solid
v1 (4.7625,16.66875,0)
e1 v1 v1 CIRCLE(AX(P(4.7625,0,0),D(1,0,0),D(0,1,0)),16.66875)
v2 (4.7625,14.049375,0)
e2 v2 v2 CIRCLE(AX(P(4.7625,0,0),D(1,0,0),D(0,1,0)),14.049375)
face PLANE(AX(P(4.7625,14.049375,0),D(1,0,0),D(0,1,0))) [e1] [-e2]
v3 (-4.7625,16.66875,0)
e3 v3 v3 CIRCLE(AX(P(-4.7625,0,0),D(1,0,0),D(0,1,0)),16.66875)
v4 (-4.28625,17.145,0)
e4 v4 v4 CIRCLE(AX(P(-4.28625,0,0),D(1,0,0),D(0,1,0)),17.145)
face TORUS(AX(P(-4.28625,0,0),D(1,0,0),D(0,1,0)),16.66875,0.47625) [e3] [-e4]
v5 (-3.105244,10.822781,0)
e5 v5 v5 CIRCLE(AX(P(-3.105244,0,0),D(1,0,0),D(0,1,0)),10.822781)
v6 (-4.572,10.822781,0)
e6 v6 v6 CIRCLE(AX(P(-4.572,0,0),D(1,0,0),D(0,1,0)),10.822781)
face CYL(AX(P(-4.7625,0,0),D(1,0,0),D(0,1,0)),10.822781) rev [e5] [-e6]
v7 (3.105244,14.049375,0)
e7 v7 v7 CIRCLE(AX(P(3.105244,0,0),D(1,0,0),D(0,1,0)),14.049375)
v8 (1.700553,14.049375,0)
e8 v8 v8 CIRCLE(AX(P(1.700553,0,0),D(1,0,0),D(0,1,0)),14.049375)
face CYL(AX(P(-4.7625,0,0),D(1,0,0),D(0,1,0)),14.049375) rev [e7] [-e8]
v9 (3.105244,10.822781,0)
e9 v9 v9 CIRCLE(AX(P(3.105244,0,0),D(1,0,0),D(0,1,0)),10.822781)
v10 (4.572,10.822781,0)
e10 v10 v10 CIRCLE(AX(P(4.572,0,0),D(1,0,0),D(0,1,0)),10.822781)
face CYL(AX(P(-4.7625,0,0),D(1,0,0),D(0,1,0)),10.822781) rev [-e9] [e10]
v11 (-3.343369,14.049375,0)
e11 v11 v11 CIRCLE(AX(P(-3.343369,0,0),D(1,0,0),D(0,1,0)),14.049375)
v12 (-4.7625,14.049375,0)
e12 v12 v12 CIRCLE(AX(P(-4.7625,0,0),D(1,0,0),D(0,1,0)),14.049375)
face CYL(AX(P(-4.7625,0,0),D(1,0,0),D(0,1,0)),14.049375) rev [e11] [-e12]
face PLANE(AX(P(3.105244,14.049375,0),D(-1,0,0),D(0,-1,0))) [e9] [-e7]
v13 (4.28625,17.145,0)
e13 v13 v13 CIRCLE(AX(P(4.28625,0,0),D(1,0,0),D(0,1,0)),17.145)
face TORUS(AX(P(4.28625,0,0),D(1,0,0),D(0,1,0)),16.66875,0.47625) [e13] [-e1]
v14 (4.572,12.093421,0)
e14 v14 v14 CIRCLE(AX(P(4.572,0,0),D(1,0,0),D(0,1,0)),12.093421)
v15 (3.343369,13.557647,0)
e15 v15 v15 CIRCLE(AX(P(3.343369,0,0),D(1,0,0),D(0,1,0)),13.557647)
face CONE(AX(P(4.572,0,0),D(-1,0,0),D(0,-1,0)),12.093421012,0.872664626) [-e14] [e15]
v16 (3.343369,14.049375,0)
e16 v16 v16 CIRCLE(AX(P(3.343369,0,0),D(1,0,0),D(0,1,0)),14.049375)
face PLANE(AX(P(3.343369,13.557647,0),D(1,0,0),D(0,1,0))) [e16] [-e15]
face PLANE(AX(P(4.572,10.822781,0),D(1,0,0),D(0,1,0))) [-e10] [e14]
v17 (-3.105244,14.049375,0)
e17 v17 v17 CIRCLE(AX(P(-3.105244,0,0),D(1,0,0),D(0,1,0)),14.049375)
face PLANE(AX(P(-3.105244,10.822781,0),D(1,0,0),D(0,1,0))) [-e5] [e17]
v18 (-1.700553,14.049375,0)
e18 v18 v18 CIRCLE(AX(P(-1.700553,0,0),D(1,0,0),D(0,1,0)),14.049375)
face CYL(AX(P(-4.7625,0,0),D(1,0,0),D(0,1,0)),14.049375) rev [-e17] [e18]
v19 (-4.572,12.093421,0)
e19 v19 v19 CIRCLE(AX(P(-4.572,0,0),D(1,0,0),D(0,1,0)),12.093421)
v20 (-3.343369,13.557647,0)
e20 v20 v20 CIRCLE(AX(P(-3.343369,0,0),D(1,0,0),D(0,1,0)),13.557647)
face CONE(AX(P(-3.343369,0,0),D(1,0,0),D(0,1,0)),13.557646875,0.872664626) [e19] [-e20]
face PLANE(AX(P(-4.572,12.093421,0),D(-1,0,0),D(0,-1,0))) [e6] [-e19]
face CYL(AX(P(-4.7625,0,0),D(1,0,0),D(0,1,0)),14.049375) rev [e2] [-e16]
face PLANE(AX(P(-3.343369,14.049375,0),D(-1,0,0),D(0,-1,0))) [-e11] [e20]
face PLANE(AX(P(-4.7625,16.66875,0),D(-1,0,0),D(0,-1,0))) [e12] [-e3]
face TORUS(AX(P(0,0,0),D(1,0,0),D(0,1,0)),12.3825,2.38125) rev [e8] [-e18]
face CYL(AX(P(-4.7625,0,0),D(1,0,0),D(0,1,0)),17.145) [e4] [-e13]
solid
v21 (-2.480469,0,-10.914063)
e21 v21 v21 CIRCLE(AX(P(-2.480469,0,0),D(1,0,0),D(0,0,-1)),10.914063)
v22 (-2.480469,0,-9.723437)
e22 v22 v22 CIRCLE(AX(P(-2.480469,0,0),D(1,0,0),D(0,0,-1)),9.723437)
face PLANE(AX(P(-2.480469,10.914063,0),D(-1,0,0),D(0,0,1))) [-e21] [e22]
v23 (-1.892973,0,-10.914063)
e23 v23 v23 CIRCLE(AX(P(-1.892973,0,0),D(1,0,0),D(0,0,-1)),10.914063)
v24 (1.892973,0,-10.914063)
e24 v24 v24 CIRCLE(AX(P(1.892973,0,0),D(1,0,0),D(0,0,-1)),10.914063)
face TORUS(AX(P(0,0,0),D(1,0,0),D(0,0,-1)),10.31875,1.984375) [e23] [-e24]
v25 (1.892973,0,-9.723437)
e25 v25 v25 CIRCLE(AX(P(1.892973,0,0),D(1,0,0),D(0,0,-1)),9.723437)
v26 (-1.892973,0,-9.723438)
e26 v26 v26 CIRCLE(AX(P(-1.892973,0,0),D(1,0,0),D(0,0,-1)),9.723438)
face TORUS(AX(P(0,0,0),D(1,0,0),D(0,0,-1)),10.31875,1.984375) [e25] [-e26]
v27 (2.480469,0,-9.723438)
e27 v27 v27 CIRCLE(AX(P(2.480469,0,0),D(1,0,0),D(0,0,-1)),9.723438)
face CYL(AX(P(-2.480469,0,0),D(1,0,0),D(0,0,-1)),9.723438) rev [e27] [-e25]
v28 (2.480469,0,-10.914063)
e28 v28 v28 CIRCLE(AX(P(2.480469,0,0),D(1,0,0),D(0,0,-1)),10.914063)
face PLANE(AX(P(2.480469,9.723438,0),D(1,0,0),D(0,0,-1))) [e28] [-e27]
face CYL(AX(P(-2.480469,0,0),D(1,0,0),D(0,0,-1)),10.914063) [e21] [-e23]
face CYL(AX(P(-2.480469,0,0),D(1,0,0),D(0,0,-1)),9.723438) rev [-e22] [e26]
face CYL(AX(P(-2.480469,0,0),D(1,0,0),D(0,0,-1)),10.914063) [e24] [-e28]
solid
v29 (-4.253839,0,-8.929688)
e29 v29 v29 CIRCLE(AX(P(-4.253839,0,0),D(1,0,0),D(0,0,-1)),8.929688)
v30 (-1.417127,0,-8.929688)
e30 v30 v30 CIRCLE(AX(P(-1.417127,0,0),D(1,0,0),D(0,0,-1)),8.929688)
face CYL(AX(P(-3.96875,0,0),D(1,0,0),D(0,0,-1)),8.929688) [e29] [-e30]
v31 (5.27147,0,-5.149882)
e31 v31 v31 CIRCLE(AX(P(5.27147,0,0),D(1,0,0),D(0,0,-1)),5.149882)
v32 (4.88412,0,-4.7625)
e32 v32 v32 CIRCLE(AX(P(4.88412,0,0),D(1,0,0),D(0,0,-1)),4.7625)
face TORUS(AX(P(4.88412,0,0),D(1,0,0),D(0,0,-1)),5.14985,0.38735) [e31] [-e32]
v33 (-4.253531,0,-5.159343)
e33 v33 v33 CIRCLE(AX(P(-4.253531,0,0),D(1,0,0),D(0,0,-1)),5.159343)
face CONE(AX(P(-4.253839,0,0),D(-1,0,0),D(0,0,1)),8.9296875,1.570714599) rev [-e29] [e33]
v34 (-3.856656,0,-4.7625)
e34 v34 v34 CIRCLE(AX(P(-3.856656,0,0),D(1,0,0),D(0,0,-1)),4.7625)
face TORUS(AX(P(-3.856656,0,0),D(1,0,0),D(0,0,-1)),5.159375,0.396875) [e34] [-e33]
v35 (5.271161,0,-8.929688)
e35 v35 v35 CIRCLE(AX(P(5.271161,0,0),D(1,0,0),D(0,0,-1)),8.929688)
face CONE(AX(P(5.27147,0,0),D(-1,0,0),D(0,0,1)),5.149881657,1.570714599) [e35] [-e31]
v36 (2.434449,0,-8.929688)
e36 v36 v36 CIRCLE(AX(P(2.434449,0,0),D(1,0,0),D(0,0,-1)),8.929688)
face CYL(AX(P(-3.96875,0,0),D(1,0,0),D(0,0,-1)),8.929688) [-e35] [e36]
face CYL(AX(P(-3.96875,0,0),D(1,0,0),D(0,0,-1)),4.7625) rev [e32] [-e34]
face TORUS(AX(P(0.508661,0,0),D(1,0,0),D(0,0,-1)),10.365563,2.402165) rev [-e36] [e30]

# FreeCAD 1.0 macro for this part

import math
import FreeCAD as App
import Part
import Sketcher

V = App.Vector
Q = App.Units.Quantity

doc = App.newDocument("Part")
body = doc.addObject("PartDesign::Body", "Body")

# Sketch on XY plane
sketch1 = body.newObject("Sketcher::SketchObject", "Sketch")
sketch1.AttachmentSupport = (doc.getObject("XY_Plane"), [""])
sketch1.MapMode = "FlatFace"
sketch1.addGeometry(Part.LineSegment(V(-3.105244, 14.049375, 0), V(-1.700553, 14.049375, 0)), False)
sketch1.addGeometry(Part.ArcOfCircle(Part.Circle(V(0, 12.3825, 0), V(0, 0, 1), 2.38125), math.radians(44.427004), math.radians(135.572996)), False)
sketch1.addGeometry(Part.LineSegment(V(1.700553, 14.049375, 0), V(3.105244, 14.049375, 0)), False)
sketch1.addGeometry(Part.LineSegment(V(3.105244, 14.049375, 0), V(3.105244, 10.822781, 0)), False)
sketch1.addGeometry(Part.LineSegment(V(3.105244, 10.822781, 0), V(4.572, 10.822781, 0)), False)
sketch1.addGeometry(Part.LineSegment(V(4.572, 10.822781, 0), V(4.572, 12.093421, 0)), False)
sketch1.addGeometry(Part.LineSegment(V(4.572, 12.093421, 0), V(3.343369, 13.557647, 0)), False)
sketch1.addGeometry(Part.LineSegment(V(3.343369, 13.557647, 0), V(3.343369, 14.049375, 0)), False)
sketch1.addGeometry(Part.LineSegment(V(3.343369, 14.049375, 0), V(4.7625, 14.049375, 0)), False)
sketch1.addGeometry(Part.LineSegment(V(4.7625, 14.049375, 0), V(4.7625, 16.66875, 0)), False)
sketch1.addGeometry(Part.ArcOfCircle(Part.Circle(V(4.28625, 16.66875, 0), V(0, 0, 1), 0.47625), math.radians(0), math.radians(90)), False)
sketch1.addGeometry(Part.LineSegment(V(4.28625, 17.145, 0), V(-4.28625, 17.145, 0)), False)
sketch1.addGeometry(Part.ArcOfCircle(Part.Circle(V(-4.28625, 16.66875, 0), V(0, 0, 1), 0.47625), math.radians(90), math.radians(180)), False)
sketch1.addGeometry(Part.LineSegment(V(-4.7625, 16.66875, 0), V(-4.7625, 14.049375, 0)), False)
sketch1.addGeometry(Part.LineSegment(V(-4.7625, 14.049375, 0), V(-3.343369, 14.049375, 0)), False)
sketch1.addGeometry(Part.LineSegment(V(-3.343369, 14.049375, 0), V(-3.343369, 13.557647, 0)), False)
sketch1.addGeometry(Part.LineSegment(V(-3.343369, 13.557647, 0), V(-4.572, 12.093421, 0)), False)
sketch1.addGeometry(Part.LineSegment(V(-4.572, 12.093421, 0), V(-4.572, 10.822781, 0)), False)
sketch1.addGeometry(Part.LineSegment(V(-4.572, 10.822781, 0), V(-3.105244, 10.822781, 0)), False)
sketch1.addGeometry(Part.LineSegment(V(-3.105244, 10.822781, 0), V(-3.105244, 14.049375, 0)), False)
sketch1.addConstraint(Sketcher.Constraint("Coincident", 0, 2, 1, 2))
sketch1.addConstraint(Sketcher.Constraint("Coincident", 1, 1, 2, 1))
sketch1.addConstraint(Sketcher.Constraint("Coincident", 2, 2, 3, 1))
sketch1.addConstraint(Sketcher.Constraint("Coincident", 3, 2, 4, 1))
sketch1.addConstraint(Sketcher.Constraint("Coincident", 4, 2, 5, 1))
sketch1.addConstraint(Sketcher.Constraint("Coincident", 5, 2, 6, 1))
sketch1.addConstraint(Sketcher.Constraint("Coincident", 6, 2, 7, 1))
sketch1.addConstraint(Sketcher.Constraint("Coincident", 7, 2, 8, 1))
sketch1.addConstraint(Sketcher.Constraint("Coincident", 8, 2, 9, 1))
sketch1.addConstraint(Sketcher.Constraint("Tangent", 9, 2, 10, 1))
sketch1.addConstraint(Sketcher.Constraint("Tangent", 10, 2, 11, 1))
sketch1.addConstraint(Sketcher.Constraint("Tangent", 11, 2, 12, 1))
sketch1.addConstraint(Sketcher.Constraint("Tangent", 12, 2, 13, 1))
sketch1.addConstraint(Sketcher.Constraint("Coincident", 13, 2, 14, 1))
sketch1.addConstraint(Sketcher.Constraint("Coincident", 14, 2, 15, 1))
sketch1.addConstraint(Sketcher.Constraint("Coincident", 15, 2, 16, 1))
sketch1.addConstraint(Sketcher.Constraint("Coincident", 16, 2, 17, 1))
sketch1.addConstraint(Sketcher.Constraint("Coincident", 17, 2, 18, 1))
sketch1.addConstraint(Sketcher.Constraint("Coincident", 18, 2, 19, 1))
sketch1.addConstraint(Sketcher.Constraint("Coincident", 19, 2, 0, 1))
sketch1.addConstraint(Sketcher.Constraint("Horizontal", 0))
sketch1.addConstraint(Sketcher.Constraint("Horizontal", 2))
sketch1.addConstraint(Sketcher.Constraint("Vertical", 3))
sketch1.addConstraint(Sketcher.Constraint("Horizontal", 4))
sketch1.addConstraint(Sketcher.Constraint("Vertical", 5))
sketch1.addConstraint(Sketcher.Constraint("Vertical", 7))
sketch1.addConstraint(Sketcher.Constraint("Horizontal", 8))
sketch1.addConstraint(Sketcher.Constraint("Vertical", 9))
sketch1.addConstraint(Sketcher.Constraint("Horizontal", 11))
sketch1.addConstraint(Sketcher.Constraint("Vertical", 13))
sketch1.addConstraint(Sketcher.Constraint("Horizontal", 14))
sketch1.addConstraint(Sketcher.Constraint("Vertical", 15))
sketch1.addConstraint(Sketcher.Constraint("Vertical", 17))
sketch1.addConstraint(Sketcher.Constraint("Horizontal", 18))
sketch1.addConstraint(Sketcher.Constraint("Vertical", 19))
sketch1.addConstraint(Sketcher.Constraint("Equal", 10, 12))
sketch1.addConstraint(Sketcher.Constraint("Symmetric", 0, 2, 1, 1, -2))
sketch1.addConstraint(Sketcher.Constraint("Symmetric", 8, 2, 13, 2, -2))
sketch1.addConstraint(Sketcher.Constraint("Symmetric", 6, 2, 15, 2, -2))
sketch1.addConstraint(Sketcher.Constraint("Symmetric", 5, 2, 16, 2, -2))
sketch1.addConstraint(Sketcher.Constraint("Symmetric", 3, 2, 18, 2, -2))
sketch1.addConstraint(Sketcher.Constraint("Horizontal", 2, 2, 7, 2))
sketch1.addConstraint(Sketcher.Constraint("Angle", 6, Q("130 deg")))
sketch1.addConstraint(Sketcher.Constraint("Radius", 1, Q("0.09375 in")))
sketch1.addConstraint(Sketcher.Constraint("DistanceX", -1, 1, 4, 2, Q("0.18 in")))
sketch1.addConstraint(Sketcher.Constraint("DistanceX", 11, 2, 11, 1, Q("0.3375 in")))
sketch1.addConstraint(Sketcher.Constraint("DistanceY", -1, 1, 10, 3, Q("0.65625 in")))
sketch1.addConstraint(Sketcher.Constraint("DistanceX", -1, 1, 8, 2, Q("0.1875 in")))
sketch1.addConstraint(Sketcher.Constraint("DistanceY", 1, 3, 11, 2, Q("0.1875 in")))
sketch1.addConstraint(Sketcher.Constraint("DistanceX", 0, 1, 0, 2, 1.404691))
sketch1.addConstraint(Sketcher.Constraint("DistanceX", 8, 1, 8, 2, 1.419131))
sketch1.addConstraint(Sketcher.Constraint("DistanceY", 5, 1, 5, 2, 1.27064))
sketch1.addConstraint(Sketcher.Constraint("DistanceY", 7, 1, 7, 2, 0.491728))
sketch1.addConstraint(Sketcher.Constraint("DistanceX", 4, 1, 4, 2, 1.466756))
revolution = body.newObject("PartDesign::Revolution", "Revolution")
revolution.Profile = sketch1
revolution.ReferenceAxis = (sketch1, ["H_Axis"])
revolution.Angle = 360
body2 = doc.addObject("PartDesign::Body", "Body001")

# Sketch on XY plane
sketch2 = body2.newObject("Sketcher::SketchObject", "Sketch001")
sketch2.AttachmentSupport = (doc.getObject("XY_Plane001"), [""])
sketch2.MapMode = "FlatFace"
sketch2.addGeometry(Part.LineSegment(V(5.271161, 8.929688, 0), V(2.434449, 8.929688, 0)), False)
sketch2.addGeometry(Part.ArcOfCircle(Part.Circle(V(0.508661, 10.365563, 0), V(0, 0, 1), 2.402165), math.radians(-143.291644), math.radians(-36.708356)), False)
sketch2.addGeometry(Part.LineSegment(V(-1.417127, 8.929688, 0), V(-4.253839, 8.929688, 0)), False)
sketch2.addGeometry(Part.LineSegment(V(-4.253839, 8.929688, 0), V(-4.253531, 5.159343, 0)), False)
sketch2.addGeometry(Part.ArcOfCircle(Part.Circle(V(-3.856656, 5.159375, 0), V(0, 0, 1), 0.396875), math.radians(-179.995317), math.radians(-90)), False)
sketch2.addGeometry(Part.LineSegment(V(-3.856656, 4.7625, 0), V(4.88412, 4.7625, 0)), False)
sketch2.addGeometry(Part.ArcOfCircle(Part.Circle(V(4.88412, 5.14985, 0), V(0, 0, 1), 0.38735), math.radians(-90), math.radians(0.004683)), False)
sketch2.addGeometry(Part.LineSegment(V(5.27147, 5.149882, 0), V(5.271161, 8.929688, 0)), False)
sketch2.addConstraint(Sketcher.Constraint("Coincident", 0, 2, 1, 2))
sketch2.addConstraint(Sketcher.Constraint("Coincident", 1, 1, 2, 1))
sketch2.addConstraint(Sketcher.Constraint("Coincident", 2, 2, 3, 1))
sketch2.addConstraint(Sketcher.Constraint("Tangent", 3, 2, 4, 1))
sketch2.addConstraint(Sketcher.Constraint("Tangent", 4, 2, 5, 1))
sketch2.addConstraint(Sketcher.Constraint("Tangent", 5, 2, 6, 1))
sketch2.addConstraint(Sketcher.Constraint("Tangent", 6, 2, 7, 1))
sketch2.addConstraint(Sketcher.Constraint("Coincident", 7, 2, 0, 1))
sketch2.addConstraint(Sketcher.Constraint("Horizontal", 0))
sketch2.addConstraint(Sketcher.Constraint("Horizontal", 2))
sketch2.addConstraint(Sketcher.Constraint("Horizontal", 5))
sketch2.addConstraint(Sketcher.Constraint("Parallel", 3, 7))
sketch2.addConstraint(Sketcher.Constraint("Horizontal", 0, 2, 1, 1))
sketch2.addConstraint(Sketcher.Constraint("Equal", 0, 2))
sketch2.addConstraint(Sketcher.Constraint("Radius", 4, Q("0.015625 in")))
sketch2.addConstraint(Sketcher.Constraint("DistanceY", -1, 1, 4, 3, Q("0.203125 in")))
sketch2.addConstraint(Sketcher.Constraint("Radius", 6, 0.38735))
sketch2.addConstraint(Sketcher.Constraint("DistanceX", 2, 2, 1, 3, Q("0.1875 in")))
sketch2.addConstraint(Sketcher.Constraint("Radius", 1, 2.402165))
sketch2.addConstraint(Sketcher.Constraint("DistanceX", 0, 2, 0, 1, 2.836712))
sketch2.addConstraint(Sketcher.Constraint("DistanceX", -1, 1, 1, 3, 0.508661))
sketch2.addConstraint(Sketcher.Constraint("DistanceX", -1, 1, 6, 3, 4.88412))
sketch2.addConstraint(Sketcher.Constraint("DistanceY", 3, 2, 1, 3, 5.20622))
revolution2 = body2.newObject("PartDesign::Revolution", "Revolution001")
revolution2.Profile = sketch2
revolution2.ReferenceAxis = (sketch2, ["H_Axis"])
revolution2.Angle = 360
body3 = doc.addObject("PartDesign::Body", "Body002")

# Sketch on XY plane
sketch3 = body3.newObject("Sketcher::SketchObject", "Sketch002")
sketch3.AttachmentSupport = (doc.getObject("XY_Plane002"), [""])
sketch3.MapMode = "FlatFace"
sketch3.addGeometry(Part.LineSegment(V(1.892973, 9.723437, 0), V(2.480469, 9.723438, 0)), False)
sketch3.addGeometry(Part.LineSegment(V(2.480469, 9.723438, 0), V(2.480469, 10.914063, 0)), False)
sketch3.addGeometry(Part.LineSegment(V(2.480469, 10.914063, 0), V(1.892973, 10.914063, 0)), False)
sketch3.addGeometry(Part.ArcOfCircle(Part.Circle(V(0, 10.31875, 0), V(0, 0, 1), 1.984375), math.radians(17.457603), math.radians(162.542397)), False)
sketch3.addGeometry(Part.LineSegment(V(-1.892973, 10.914062, 0), V(-2.480469, 10.914062, 0)), False)
sketch3.addGeometry(Part.LineSegment(V(-2.480469, 10.914062, 0), V(-2.480469, 9.723437, 0)), False)
sketch3.addGeometry(Part.LineSegment(V(-2.480469, 9.723437, 0), V(-1.892973, 9.723438, 0)), False)
sketch3.addGeometry(Part.ArcOfCircle(Part.Circle(V(0, 10.31875, 0), V(0, 0, 1), 1.984375), math.radians(-162.542397), math.radians(-17.457603)), False)
sketch3.addConstraint(Sketcher.Constraint("Coincident", 0, 2, 1, 1))
sketch3.addConstraint(Sketcher.Constraint("Coincident", 1, 2, 2, 1))
sketch3.addConstraint(Sketcher.Constraint("Coincident", 2, 2, 3, 1))
sketch3.addConstraint(Sketcher.Constraint("Coincident", 3, 2, 4, 1))
sketch3.addConstraint(Sketcher.Constraint("Coincident", 4, 2, 5, 1))
sketch3.addConstraint(Sketcher.Constraint("Coincident", 5, 2, 6, 1))
sketch3.addConstraint(Sketcher.Constraint("Coincident", 6, 2, 7, 1))
sketch3.addConstraint(Sketcher.Constraint("Coincident", 7, 2, 0, 1))
sketch3.addConstraint(Sketcher.Constraint("Horizontal", 0))
sketch3.addConstraint(Sketcher.Constraint("Vertical", 1))
sketch3.addConstraint(Sketcher.Constraint("Horizontal", 2))
sketch3.addConstraint(Sketcher.Constraint("Horizontal", 4))
sketch3.addConstraint(Sketcher.Constraint("Vertical", 5))
sketch3.addConstraint(Sketcher.Constraint("Horizontal", 6))
sketch3.addConstraint(Sketcher.Constraint("Coincident", 7, 3, 3, 3))
sketch3.addConstraint(Sketcher.Constraint("Equal", 3, 7))
sketch3.addConstraint(Sketcher.Constraint("Symmetric", 2, 2, 3, 2, -2))
sketch3.addConstraint(Sketcher.Constraint("Symmetric", 0, 2, 5, 2, -2))
sketch3.addConstraint(Sketcher.Constraint("Vertical", 3, 2, 6, 2))
sketch3.addConstraint(Sketcher.Constraint("Radius", 3, Q("0.078125 in")))
sketch3.addConstraint(Sketcher.Constraint("DistanceY", 1, 1, 1, 2, Q("0.046875 in")))
sketch3.addConstraint(Sketcher.Constraint("DistanceY", -1, 1, 3, 3, Q("0.40625 in")))
sketch3.addConstraint(Sketcher.Constraint("DistanceX", 0, 1, 0, 2, 0.587496))
revolution3 = body3.newObject("PartDesign::Revolution", "Revolution002")
revolution3.Profile = sketch3
revolution3.ReferenceAxis = (sketch3, ["H_Axis"])
revolution3.Angle = 360

doc.recompute()
